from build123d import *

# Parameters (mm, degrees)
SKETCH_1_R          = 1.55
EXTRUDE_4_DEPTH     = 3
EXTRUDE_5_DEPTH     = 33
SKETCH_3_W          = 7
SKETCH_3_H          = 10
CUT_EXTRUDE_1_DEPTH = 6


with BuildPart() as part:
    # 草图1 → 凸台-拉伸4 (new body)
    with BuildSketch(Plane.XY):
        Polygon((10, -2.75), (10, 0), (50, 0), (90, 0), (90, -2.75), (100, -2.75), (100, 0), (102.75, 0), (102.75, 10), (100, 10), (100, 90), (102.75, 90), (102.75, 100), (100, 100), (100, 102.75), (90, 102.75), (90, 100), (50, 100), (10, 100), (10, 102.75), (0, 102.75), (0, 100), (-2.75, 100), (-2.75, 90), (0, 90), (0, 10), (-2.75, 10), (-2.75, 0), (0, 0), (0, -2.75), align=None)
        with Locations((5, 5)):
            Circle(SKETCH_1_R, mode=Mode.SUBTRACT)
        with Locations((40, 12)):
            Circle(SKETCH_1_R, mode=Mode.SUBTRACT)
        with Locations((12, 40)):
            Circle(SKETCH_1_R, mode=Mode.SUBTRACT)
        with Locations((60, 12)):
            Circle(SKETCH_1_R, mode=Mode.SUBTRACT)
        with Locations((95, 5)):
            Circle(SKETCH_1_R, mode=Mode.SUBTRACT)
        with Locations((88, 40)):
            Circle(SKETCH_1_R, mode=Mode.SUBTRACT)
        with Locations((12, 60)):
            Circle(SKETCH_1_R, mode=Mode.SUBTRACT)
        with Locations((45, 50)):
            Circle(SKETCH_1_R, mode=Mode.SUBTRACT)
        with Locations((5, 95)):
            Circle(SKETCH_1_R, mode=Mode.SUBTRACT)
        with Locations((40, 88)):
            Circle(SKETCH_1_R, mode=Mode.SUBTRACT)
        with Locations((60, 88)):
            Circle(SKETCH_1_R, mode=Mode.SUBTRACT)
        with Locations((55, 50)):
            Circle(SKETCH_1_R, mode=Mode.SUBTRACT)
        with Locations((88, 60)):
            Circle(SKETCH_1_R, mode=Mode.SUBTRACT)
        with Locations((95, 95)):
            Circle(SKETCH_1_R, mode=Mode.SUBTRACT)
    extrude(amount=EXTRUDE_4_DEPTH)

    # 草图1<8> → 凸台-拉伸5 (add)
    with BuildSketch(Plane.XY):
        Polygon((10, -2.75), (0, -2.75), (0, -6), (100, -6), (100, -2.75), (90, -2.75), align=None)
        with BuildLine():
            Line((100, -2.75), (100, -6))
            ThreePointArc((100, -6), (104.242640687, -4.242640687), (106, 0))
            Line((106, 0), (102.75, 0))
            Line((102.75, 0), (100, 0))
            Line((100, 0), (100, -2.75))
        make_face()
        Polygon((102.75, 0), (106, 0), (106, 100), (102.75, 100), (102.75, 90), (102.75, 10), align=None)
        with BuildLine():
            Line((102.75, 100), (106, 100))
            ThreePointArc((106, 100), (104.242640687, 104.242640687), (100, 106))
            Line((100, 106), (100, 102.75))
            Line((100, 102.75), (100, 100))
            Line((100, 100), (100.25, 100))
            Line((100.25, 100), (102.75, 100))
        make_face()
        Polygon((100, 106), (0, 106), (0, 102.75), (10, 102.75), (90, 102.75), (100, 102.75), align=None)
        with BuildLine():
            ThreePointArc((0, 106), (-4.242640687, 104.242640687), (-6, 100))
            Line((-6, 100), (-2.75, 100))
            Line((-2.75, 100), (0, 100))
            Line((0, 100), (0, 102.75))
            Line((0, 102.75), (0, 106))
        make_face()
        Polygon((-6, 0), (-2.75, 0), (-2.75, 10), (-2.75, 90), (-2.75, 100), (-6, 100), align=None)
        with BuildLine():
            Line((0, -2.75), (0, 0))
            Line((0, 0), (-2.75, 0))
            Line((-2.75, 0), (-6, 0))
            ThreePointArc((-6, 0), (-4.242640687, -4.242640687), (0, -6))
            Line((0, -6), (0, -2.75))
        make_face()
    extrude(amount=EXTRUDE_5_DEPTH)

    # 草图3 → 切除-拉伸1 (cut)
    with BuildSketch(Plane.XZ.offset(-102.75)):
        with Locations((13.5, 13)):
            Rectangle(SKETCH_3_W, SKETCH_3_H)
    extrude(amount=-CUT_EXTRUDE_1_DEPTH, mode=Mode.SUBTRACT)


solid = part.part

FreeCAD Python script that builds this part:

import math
import FreeCAD as App
import Part
import Sketcher

V = App.Vector
Q = App.Units.Quantity


def add_polygon(sketch, points):
    """Adds a closed chain of lines whose ends are joined by coincident constraints."""
    first, n = sketch.GeometryCount, len(points)
    for a, b in zip(points, points[1:] + points[:1]):
        sketch.addGeometry(Part.LineSegment(App.Vector(*a, 0), App.Vector(*b, 0)), False)
    for i in range(n):
        sketch.addConstraint(Sketcher.Constraint("Coincident", first + i, 2, first + (i + 1) % n, 1))

doc = App.newDocument("Part")
body = doc.addObject("PartDesign::Body", "Body")

# Sketch on XY plane
sketch1 = body.newObject("Sketcher::SketchObject", "Sketch")
sketch1.AttachmentSupport = (doc.getObject("XY_Plane"), [""])
sketch1.MapMode = "FlatFace"
add_polygon(sketch1, [(10, -2.75), (10, 0), (90, 0), (90, -2.75), (100, -2.75), (100, 0), (102.75, 0), (102.75, 10), (100, 10), (100, 90), (102.75, 90), (102.75, 100), (100, 100), (100, 102.75), (90, 102.75), (90, 100), (10, 100), (10, 102.75), (0, 102.75), (0, 100), (-2.75, 100), (-2.75, 90), (0, 90), (0, 10), (-2.75, 10), (-2.75, 0), (0, 0), (0, -2.75)])  # lines 0-27
sketch1.addGeometry(Part.Circle(V(5, 5, 0), V(0, 0, 1), 1.55), False)  # 28
sketch1.addGeometry(Part.Circle(V(40, 12, 0), V(0, 0, 1), 1.55), False)  # 29
sketch1.addGeometry(Part.Circle(V(12, 40, 0), V(0, 0, 1), 1.55), False)  # 30
sketch1.addGeometry(Part.Circle(V(60, 12, 0), V(0, 0, 1), 1.55), False)  # 31
sketch1.addGeometry(Part.Circle(V(95, 5, 0), V(0, 0, 1), 1.55), False)  # 32
sketch1.addGeometry(Part.Circle(V(88, 40, 0), V(0, 0, 1), 1.55), False)  # 33
sketch1.addGeometry(Part.Circle(V(12, 60, 0), V(0, 0, 1), 1.55), False)  # 34
sketch1.addGeometry(Part.Circle(V(45, 50, 0), V(0, 0, 1), 1.55), False)  # 35
sketch1.addGeometry(Part.Circle(V(5, 95, 0), V(0, 0, 1), 1.55), False)  # 36
sketch1.addGeometry(Part.Circle(V(40, 88, 0), V(0, 0, 1), 1.55), False)  # 37
sketch1.addGeometry(Part.Circle(V(55, 50, 0), V(0, 0, 1), 1.55), False)  # 38
sketch1.addGeometry(Part.Circle(V(88, 60, 0), V(0, 0, 1), 1.55), False)  # 39
sketch1.addGeometry(Part.Circle(V(60, 88, 0), V(0, 0, 1), 1.55), False)  # 40
sketch1.addGeometry(Part.Circle(V(95, 95, 0), V(0, 0, 1), 1.55), False)  # 41
sketch1.addConstraint([
    Sketcher.Constraint("Vertical", 0),
    Sketcher.Constraint("Horizontal", 1),
    Sketcher.Constraint("Vertical", 2),
    Sketcher.Constraint("Horizontal", 3),
    Sketcher.Constraint("Vertical", 4),
    Sketcher.Constraint("Horizontal", 5),
    Sketcher.Constraint("Vertical", 6),
    Sketcher.Constraint("Horizontal", 7),
    Sketcher.Constraint("Vertical", 8),
    Sketcher.Constraint("Horizontal", 9),
    Sketcher.Constraint("Vertical", 10),
    Sketcher.Constraint("Horizontal", 11),
    Sketcher.Constraint("Vertical", 12),
    Sketcher.Constraint("Horizontal", 13),
    Sketcher.Constraint("Vertical", 14),
    Sketcher.Constraint("Horizontal", 15),
    Sketcher.Constraint("Vertical", 16),
    Sketcher.Constraint("Horizontal", 17),
    Sketcher.Constraint("Vertical", 18),
    Sketcher.Constraint("Horizontal", 19),
    Sketcher.Constraint("Vertical", 20),
    Sketcher.Constraint("Horizontal", 21),
    Sketcher.Constraint("Vertical", 22),
    Sketcher.Constraint("Horizontal", 23),
    Sketcher.Constraint("Vertical", 24),
    Sketcher.Constraint("Horizontal", 25),
    Sketcher.Constraint("Vertical", 26),
    Sketcher.Constraint("Horizontal", 27),
    Sketcher.Constraint("Coincident", 25, 2, -1, 1),
    Sketcher.Constraint("Equal", 28, 29),
    Sketcher.Constraint("Equal", 29, 30),
    Sketcher.Constraint("Equal", 30, 31),
    Sketcher.Constraint("Equal", 31, 32),
    Sketcher.Constraint("Equal", 32, 33),
    Sketcher.Constraint("Equal", 33, 34),
    Sketcher.Constraint("Equal", 34, 35),
    Sketcher.Constraint("Equal", 35, 36),
    Sketcher.Constraint("Equal", 36, 37),
    Sketcher.Constraint("Equal", 37, 38),
    Sketcher.Constraint("Equal", 38, 39),
    Sketcher.Constraint("Equal", 39, 40),
    Sketcher.Constraint("Equal", 40, 41),
    Sketcher.Constraint("PointOnObject", 0, 2, -1),
    Sketcher.Constraint("PointOnObject", 4, 2, -1),
    Sketcher.Constraint("PointOnObject", 17, 2, -2),
    Sketcher.Constraint("PointOnObject", 21, 2, -2),
    Sketcher.Constraint("Horizontal", 29, 3, 31, 3),
    Sketcher.Constraint("Horizontal", 28, 3, 32, 3),
    Sketcher.Constraint("Horizontal", 30, 3, 33, 3),
    Sketcher.Constraint("Horizontal", 35, 3, 38, 3),
    Sketcher.Constraint("Horizontal", 34, 3, 39, 3),
    Sketcher.Constraint("Horizontal", 37, 3, 40, 3),
    Sketcher.Constraint("Horizontal", 36, 3, 41, 3),
    Sketcher.Constraint("Horizontal", 11, 2, 14, 2),
    Sketcher.Constraint("Horizontal", 13, 2, 16, 2),
    Sketcher.Constraint("Horizontal", 15, 2, 18, 2),
    Sketcher.Constraint("Horizontal", 9, 2, 20, 2),
    Sketcher.Constraint("Horizontal", 7, 2, 22, 2),
    Sketcher.Constraint("Horizontal", 3, 2, 26, 2),
    Sketcher.Constraint("Vertical", 30, 3, 34, 3),
    Sketcher.Constraint("Vertical", 28, 3, 36, 3),
    Sketcher.Constraint("Vertical", 29, 3, 37, 3),
    Sketcher.Constraint("Vertical", 33, 3, 39, 3),
    Sketcher.Constraint("Vertical", 31, 3, 40, 3),
    Sketcher.Constraint("Vertical", 32, 3, 41, 3),
    Sketcher.Constraint("Vertical", 4, 2, 7, 2),
    Sketcher.Constraint("Vertical", 6, 2, 9, 2),
    Sketcher.Constraint("Vertical", 8, 2, 11, 2),
    Sketcher.Constraint("Vertical", 2, 2, 13, 2),
    Sketcher.Constraint("Vertical", 0, 2, 15, 2),
    Sketcher.Constraint("Vertical", 20, 2, 23, 2),
    Sketcher.Constraint("Equal", 13, 17),
    Sketcher.Constraint("Equal", 11, 19),
    Sketcher.Constraint("Equal", 25, 0),
    Sketcher.Constraint("Equal", 27, 6),
    Sketcher.Constraint("Equal", 15, 8),
    Sketcher.Constraint("Equal", 6, 10),
    Sketcher.Constraint("Equal", 4, 12),
    Sketcher.Constraint("Diameter", 28, Q("3.1 mm")),
    Sketcher.Constraint("DistanceX", 1, 1, 1, 2, Q("80 mm")),
    Sketcher.Constraint("DistanceX", 3, 1, 3, 2, Q("10 mm")),
    Sketcher.Constraint("DistanceX", -1, 1, 28, 3, Q("5 mm")),
    Sketcher.Constraint("DistanceY", -1, 1, 28, 3, Q("5 mm")),
    Sketcher.Constraint("DistanceX", -1, 1, 29, 3, Q("40 mm")),
    Sketcher.Constraint("DistanceY", -1, 1, 29, 3, Q("12 mm")),
    Sketcher.Constraint("DistanceX", -1, 1, 30, 3, Q("12 mm")),
    Sketcher.Constraint("DistanceY", -1, 1, 30, 3, Q("40 mm")),
    Sketcher.Constraint("DistanceX", -1, 1, 31, 3, Q("60 mm")),
    Sketcher.Constraint("DistanceX", -1, 1, 32, 3, Q("95 mm")),
    Sketcher.Constraint("DistanceX", -1, 1, 33, 3, Q("88 mm")),
    Sketcher.Constraint("DistanceY", -1, 1, 34, 3, Q("60 mm")),
    Sketcher.Constraint("DistanceX", -1, 1, 35, 3, Q("45 mm")),
    Sketcher.Constraint("DistanceY", -1, 1, 35, 3, Q("50 mm")),
    Sketcher.Constraint("DistanceY", -1, 1, 36, 3, Q("95 mm")),
    Sketcher.Constraint("DistanceY", -1, 1, 37, 3, Q("88 mm")),
    Sketcher.Constraint("DistanceX", -1, 1, 38, 3, Q("55 mm")),
    Sketcher.Constraint("DistanceX", 5, 1, 5, 2, Q("2.75 mm")),
])
pad1 = body.newObject("PartDesign::Pad", "Pad")
pad1.Profile = sketch1
pad1.Length = 3

# Sketch on XY plane
sketch2 = body.newObject("Sketcher::SketchObject", "Sketch001")
sketch2.AttachmentSupport = (doc.getObject("XY_Plane"), [""])
sketch2.MapMode = "FlatFace"
sketch2.addGeometry(Part.LineSegment(V(0, -6, 0), V(100, -6, 0)), False)  # 0
sketch2.addGeometry(Part.ArcOfCircle(Part.Circle(V(100, 0, 0), V(0, 0, 1), 6), math.radians(-90), math.radians(0)), False)  # 1
sketch2.addGeometry(Part.LineSegment(V(106, 0, 0), V(106, 100, 0)), False)  # 2
sketch2.addGeometry(Part.ArcOfCircle(Part.Circle(V(100, 100, 0), V(0, 0, 1), 6), math.radians(0), math.radians(90)), False)  # 3
sketch2.addGeometry(Part.LineSegment(V(100, 106, 0), V(0, 106, 0)), False)  # 4
sketch2.addGeometry(Part.ArcOfCircle(Part.Circle(V(0, 100, 0), V(0, 0, 1), 6), math.radians(90), math.radians(180)), False)  # 5
sketch2.addGeometry(Part.LineSegment(V(-6, 100, 0), V(-6, 0, 0)), False)  # 6
sketch2.addGeometry(Part.ArcOfCircle(Part.Circle(V(0, 0, 0), V(0, 0, 1), 6), math.radians(180), math.radians(270)), False)  # 7
add_polygon(sketch2, [(-2.75, 0), (-2.75, 100), (0, 100), (0, 102.75), (100, 102.75), (100, 100), (102.75, 100), (102.75, 0), (100, 0), (100, -2.75), (0, -2.75), (0, 0)])  # lines 8-19
sketch2.addConstraint([
    Sketcher.Constraint("Tangent", 0, 2, 1, 1),
    Sketcher.Constraint("Tangent", 1, 2, 2, 1),
    Sketcher.Constraint("Tangent", 2, 2, 3, 1),
    Sketcher.Constraint("Tangent", 3, 2, 4, 1),
    Sketcher.Constraint("Tangent", 4, 2, 5, 1),
    Sketcher.Constraint("Tangent", 5, 2, 6, 1),
    Sketcher.Constraint("Tangent", 6, 2, 7, 1),
    Sketcher.Constraint("Tangent", 7, 2, 0, 1),
    Sketcher.Constraint("Horizontal", 0),
    Sketcher.Constraint("Vertical", 2),
    Sketcher.Constraint("Horizontal", 4),
    Sketcher.Constraint("Vertical", 6),
    Sketcher.Constraint("Vertical", 8),
    Sketcher.Constraint("Horizontal", 9),
    Sketcher.Constraint("Vertical", 10),
    Sketcher.Constraint("Horizontal", 11),
    Sketcher.Constraint("Vertical", 12),
    Sketcher.Constraint("Horizontal", 13),
    Sketcher.Constraint("Vertical", 14),
    Sketcher.Constraint("Horizontal", 15),
    Sketcher.Constraint("Vertical", 16),
    Sketcher.Constraint("Horizontal", 17),
    Sketcher.Constraint("Vertical", 18),
    Sketcher.Constraint("Horizontal", 19),
    Sketcher.Constraint("Coincident", 7, 3, -1, 1),
    Sketcher.Constraint("Coincident", 18, 2, -1, 1),
    Sketcher.Constraint("Coincident", 9, 2, 5, 3),
    Sketcher.Constraint("Coincident", 12, 2, 3, 3),
    Sketcher.Constraint("Coincident", 15, 2, 1, 3),
    Sketcher.Constraint("Equal", 1, 3),
    Sketcher.Constraint("Equal", 3, 5),
    Sketcher.Constraint("Equal", 5, 7),
    Sketcher.Constraint("Equal", 9, 13),
    Sketcher.Constraint("Equal", 17, 2),
    Sketcher.Constraint("Equal", 19, 10),
    Sketcher.Constraint("Equal", 12, 16),
    Sketcher.Constraint("Radius", 1, Q("6 mm")),
    Sketcher.Constraint("DistanceX", 0, 1, 0, 2, Q("100 mm")),
    Sketcher.Constraint("DistanceX", 9, 1, 9, 2, Q("2.75 mm")),
])
pad2 = body.newObject("PartDesign::Pad", "Pad001")
pad2.Profile = sketch2
pad2.Length = 33

# Sketch on XZ plane
sketch3 = body.newObject("Sketcher::SketchObject", "Sketch002")
sketch3.AttachmentSupport = (doc.getObject("XZ_Plane"), [""])
sketch3.MapMode = "FlatFace"
sketch3.AttachmentOffset = App.Placement(V(0, 0, -102.75), App.Rotation())
add_polygon(sketch3, [(10, 18), (10, 8), (17, 8), (17, 18)])  # lines 0-3
sketch3.addConstraint([
    Sketcher.Constraint("Vertical", 0),
    Sketcher.Constraint("Horizontal", 1),
    Sketcher.Constraint("Vertical", 2),
    Sketcher.Constraint("Horizontal", 3),
    Sketcher.Constraint("DistanceX", 1, 1, 1, 2, Q("7 mm")),
    Sketcher.Constraint("DistanceY", 0, 2, 0, 1, Q("10 mm")),
    Sketcher.Constraint("DistanceX", -1, 1, 0, 2, Q("10 mm")),
    Sketcher.Constraint("DistanceY", -1, 1, 0, 2, Q("8 mm")),
])
pocket1 = body.newObject("PartDesign::Pocket", "Pocket")
pocket1.Profile = sketch3
pocket1.Length = 6

doc.recompute()
